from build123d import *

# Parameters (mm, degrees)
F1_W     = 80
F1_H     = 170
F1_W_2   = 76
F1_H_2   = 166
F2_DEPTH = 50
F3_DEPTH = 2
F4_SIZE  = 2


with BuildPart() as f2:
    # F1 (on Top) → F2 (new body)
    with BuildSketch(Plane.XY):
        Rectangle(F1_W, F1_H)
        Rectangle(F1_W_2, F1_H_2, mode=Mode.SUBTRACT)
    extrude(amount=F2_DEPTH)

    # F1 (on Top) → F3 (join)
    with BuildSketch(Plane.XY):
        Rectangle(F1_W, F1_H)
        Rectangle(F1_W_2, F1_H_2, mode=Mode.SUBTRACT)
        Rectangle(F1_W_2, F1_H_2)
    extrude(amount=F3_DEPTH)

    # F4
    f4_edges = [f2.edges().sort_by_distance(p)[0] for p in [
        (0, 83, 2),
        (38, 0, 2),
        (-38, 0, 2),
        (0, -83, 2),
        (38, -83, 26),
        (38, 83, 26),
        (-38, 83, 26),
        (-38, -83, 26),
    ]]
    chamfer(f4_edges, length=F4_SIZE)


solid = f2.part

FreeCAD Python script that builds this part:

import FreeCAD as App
import Part
import Sketcher


def edges_at(feature, points):
    """Names of the edges that pass closest to the given points."""
    edges = feature.Shape.Edges
    near = lambda p: min(range(len(edges)), key=lambda i: edges[i].distToShape(Part.Vertex(*p))[0])
    return sorted({f"Edge{near(p) + 1}" for p in points})

doc = App.newDocument("Part")
body = doc.addObject("PartDesign::Body", "Body")

sketch1 = doc.addObject("Sketcher::SketchObject", "Sketch")
body.addObject(sketch1)
sketch1.AttachmentSupport = (doc.XY_Plane, [""])
sketch1.MapMode = "FlatFace"
sketch1.addGeometry(Part.LineSegment(App.Vector(-40, 85, 0), App.Vector(-40, -85, 0)), False)
sketch1.addGeometry(Part.LineSegment(App.Vector(-40, -85, 0), App.Vector(40, -85, 0)), False)
sketch1.addGeometry(Part.LineSegment(App.Vector(40, -85, 0), App.Vector(40, 85, 0)), False)
sketch1.addGeometry(Part.LineSegment(App.Vector(40, 85, 0), App.Vector(-40, 85, 0)), False)
sketch1.addGeometry(Part.LineSegment(App.Vector(38, -83, 0), App.Vector(-38, -83, 0)), False)
sketch1.addGeometry(Part.LineSegment(App.Vector(-38, -83, 0), App.Vector(-38, 83, 0)), False)
sketch1.addGeometry(Part.LineSegment(App.Vector(-38, 83, 0), App.Vector(38, 83, 0)), False)
sketch1.addGeometry(Part.LineSegment(App.Vector(38, 83, 0), App.Vector(38, -83, 0)), False)
sketch1.addConstraint(Sketcher.Constraint("Coincident", 0, 2, 1, 1))
sketch1.addConstraint(Sketcher.Constraint("Coincident", 1, 2, 2, 1))
sketch1.addConstraint(Sketcher.Constraint("Coincident", 2, 2, 3, 1))
sketch1.addConstraint(Sketcher.Constraint("Coincident", 3, 2, 0, 1))
sketch1.addConstraint(Sketcher.Constraint("Coincident", 4, 2, 5, 1))
sketch1.addConstraint(Sketcher.Constraint("Coincident", 5, 2, 6, 1))
sketch1.addConstraint(Sketcher.Constraint("Coincident", 6, 2, 7, 1))
sketch1.addConstraint(Sketcher.Constraint("Coincident", 7, 2, 4, 1))
sketch1.addConstraint(Sketcher.Constraint("Vertical", 0))
sketch1.addConstraint(Sketcher.Constraint("Horizontal", 1))
sketch1.addConstraint(Sketcher.Constraint("Vertical", 2))
sketch1.addConstraint(Sketcher.Constraint("Horizontal", 3))
sketch1.addConstraint(Sketcher.Constraint("Horizontal", 4))
sketch1.addConstraint(Sketcher.Constraint("Vertical", 5))
sketch1.addConstraint(Sketcher.Constraint("Horizontal", 6))
sketch1.addConstraint(Sketcher.Constraint("Vertical", 7))
sketch1.addConstraint(Sketcher.Constraint("Symmetric", 0, 2, 2, 2, -1, 1))
sketch1.addConstraint(Sketcher.Constraint("Symmetric", 4, 2, 6, 2, -1, 1))
sketch1.addConstraint(Sketcher.Constraint("DistanceX", 1, 1, 1, 2, 80.0))
sketch1.addConstraint(Sketcher.Constraint("DistanceX", 4, 2, 4, 1, 76.0))
sketch1.addConstraint(Sketcher.Constraint("DistanceY", 0, 2, 0, 1, 170.0))
sketch1.addConstraint(Sketcher.Constraint("DistanceY", 5, 1, 5, 2, 166.0))
pad1 = doc.addObject("PartDesign::Pad", "Pad")
body.addObject(pad1)
pad1.Profile = sketch1
pad1.Length = 50

sketch2 = doc.addObject("Sketcher::SketchObject", "Sketch001")
body.addObject(sketch2)
sketch2.AttachmentSupport = (doc.XY_Plane, [""])
sketch2.MapMode = "FlatFace"
sketch2.addGeometry(Part.LineSegment(App.Vector(-40, 85, 0), App.Vector(-40, -85, 0)), False)
sketch2.addGeometry(Part.LineSegment(App.Vector(-40, -85, 0), App.Vector(40, -85, 0)), False)
sketch2.addGeometry(Part.LineSegment(App.Vector(40, -85, 0), App.Vector(40, 85, 0)), False)
sketch2.addGeometry(Part.LineSegment(App.Vector(40, 85, 0), App.Vector(-40, 85, 0)), False)
sketch2.addConstraint(Sketcher.Constraint("Coincident", 0, 2, 1, 1))
sketch2.addConstraint(Sketcher.Constraint("Coincident", 1, 2, 2, 1))
sketch2.addConstraint(Sketcher.Constraint("Coincident", 2, 2, 3, 1))
sketch2.addConstraint(Sketcher.Constraint("Coincident", 3, 2, 0, 1))
sketch2.addConstraint(Sketcher.Constraint("Vertical", 0))
sketch2.addConstraint(Sketcher.Constraint("Horizontal", 1))
sketch2.addConstraint(Sketcher.Constraint("Vertical", 2))
sketch2.addConstraint(Sketcher.Constraint("Horizontal", 3))
sketch2.addConstraint(Sketcher.Constraint("Symmetric", 0, 2, 2, 2, -1, 1))
sketch2.addConstraint(Sketcher.Constraint("DistanceX", 1, 1, 1, 2, 80.0))
sketch2.addConstraint(Sketcher.Constraint("DistanceY", 0, 2, 0, 1, 170.0))
pad2 = doc.addObject("PartDesign::Pad", "Pad001")
body.addObject(pad2)
pad2.Profile = sketch2
pad2.Length = 2
doc.recompute()

chamfer = doc.addObject("PartDesign::Chamfer", "Chamfer")
body.addObject(chamfer)
chamfer.Base = (pad2, edges_at(pad2, [
    (0, 83, 2),
    (38, 0, 2),
    (-38, 0, 2),
    (0, -83, 2),
    (38, -83, 26),
    (38, 83, 26),
    (-38, 83, 26),
    (-38, -83, 26),
]))
chamfer.Size = 2

doc.recompute()
